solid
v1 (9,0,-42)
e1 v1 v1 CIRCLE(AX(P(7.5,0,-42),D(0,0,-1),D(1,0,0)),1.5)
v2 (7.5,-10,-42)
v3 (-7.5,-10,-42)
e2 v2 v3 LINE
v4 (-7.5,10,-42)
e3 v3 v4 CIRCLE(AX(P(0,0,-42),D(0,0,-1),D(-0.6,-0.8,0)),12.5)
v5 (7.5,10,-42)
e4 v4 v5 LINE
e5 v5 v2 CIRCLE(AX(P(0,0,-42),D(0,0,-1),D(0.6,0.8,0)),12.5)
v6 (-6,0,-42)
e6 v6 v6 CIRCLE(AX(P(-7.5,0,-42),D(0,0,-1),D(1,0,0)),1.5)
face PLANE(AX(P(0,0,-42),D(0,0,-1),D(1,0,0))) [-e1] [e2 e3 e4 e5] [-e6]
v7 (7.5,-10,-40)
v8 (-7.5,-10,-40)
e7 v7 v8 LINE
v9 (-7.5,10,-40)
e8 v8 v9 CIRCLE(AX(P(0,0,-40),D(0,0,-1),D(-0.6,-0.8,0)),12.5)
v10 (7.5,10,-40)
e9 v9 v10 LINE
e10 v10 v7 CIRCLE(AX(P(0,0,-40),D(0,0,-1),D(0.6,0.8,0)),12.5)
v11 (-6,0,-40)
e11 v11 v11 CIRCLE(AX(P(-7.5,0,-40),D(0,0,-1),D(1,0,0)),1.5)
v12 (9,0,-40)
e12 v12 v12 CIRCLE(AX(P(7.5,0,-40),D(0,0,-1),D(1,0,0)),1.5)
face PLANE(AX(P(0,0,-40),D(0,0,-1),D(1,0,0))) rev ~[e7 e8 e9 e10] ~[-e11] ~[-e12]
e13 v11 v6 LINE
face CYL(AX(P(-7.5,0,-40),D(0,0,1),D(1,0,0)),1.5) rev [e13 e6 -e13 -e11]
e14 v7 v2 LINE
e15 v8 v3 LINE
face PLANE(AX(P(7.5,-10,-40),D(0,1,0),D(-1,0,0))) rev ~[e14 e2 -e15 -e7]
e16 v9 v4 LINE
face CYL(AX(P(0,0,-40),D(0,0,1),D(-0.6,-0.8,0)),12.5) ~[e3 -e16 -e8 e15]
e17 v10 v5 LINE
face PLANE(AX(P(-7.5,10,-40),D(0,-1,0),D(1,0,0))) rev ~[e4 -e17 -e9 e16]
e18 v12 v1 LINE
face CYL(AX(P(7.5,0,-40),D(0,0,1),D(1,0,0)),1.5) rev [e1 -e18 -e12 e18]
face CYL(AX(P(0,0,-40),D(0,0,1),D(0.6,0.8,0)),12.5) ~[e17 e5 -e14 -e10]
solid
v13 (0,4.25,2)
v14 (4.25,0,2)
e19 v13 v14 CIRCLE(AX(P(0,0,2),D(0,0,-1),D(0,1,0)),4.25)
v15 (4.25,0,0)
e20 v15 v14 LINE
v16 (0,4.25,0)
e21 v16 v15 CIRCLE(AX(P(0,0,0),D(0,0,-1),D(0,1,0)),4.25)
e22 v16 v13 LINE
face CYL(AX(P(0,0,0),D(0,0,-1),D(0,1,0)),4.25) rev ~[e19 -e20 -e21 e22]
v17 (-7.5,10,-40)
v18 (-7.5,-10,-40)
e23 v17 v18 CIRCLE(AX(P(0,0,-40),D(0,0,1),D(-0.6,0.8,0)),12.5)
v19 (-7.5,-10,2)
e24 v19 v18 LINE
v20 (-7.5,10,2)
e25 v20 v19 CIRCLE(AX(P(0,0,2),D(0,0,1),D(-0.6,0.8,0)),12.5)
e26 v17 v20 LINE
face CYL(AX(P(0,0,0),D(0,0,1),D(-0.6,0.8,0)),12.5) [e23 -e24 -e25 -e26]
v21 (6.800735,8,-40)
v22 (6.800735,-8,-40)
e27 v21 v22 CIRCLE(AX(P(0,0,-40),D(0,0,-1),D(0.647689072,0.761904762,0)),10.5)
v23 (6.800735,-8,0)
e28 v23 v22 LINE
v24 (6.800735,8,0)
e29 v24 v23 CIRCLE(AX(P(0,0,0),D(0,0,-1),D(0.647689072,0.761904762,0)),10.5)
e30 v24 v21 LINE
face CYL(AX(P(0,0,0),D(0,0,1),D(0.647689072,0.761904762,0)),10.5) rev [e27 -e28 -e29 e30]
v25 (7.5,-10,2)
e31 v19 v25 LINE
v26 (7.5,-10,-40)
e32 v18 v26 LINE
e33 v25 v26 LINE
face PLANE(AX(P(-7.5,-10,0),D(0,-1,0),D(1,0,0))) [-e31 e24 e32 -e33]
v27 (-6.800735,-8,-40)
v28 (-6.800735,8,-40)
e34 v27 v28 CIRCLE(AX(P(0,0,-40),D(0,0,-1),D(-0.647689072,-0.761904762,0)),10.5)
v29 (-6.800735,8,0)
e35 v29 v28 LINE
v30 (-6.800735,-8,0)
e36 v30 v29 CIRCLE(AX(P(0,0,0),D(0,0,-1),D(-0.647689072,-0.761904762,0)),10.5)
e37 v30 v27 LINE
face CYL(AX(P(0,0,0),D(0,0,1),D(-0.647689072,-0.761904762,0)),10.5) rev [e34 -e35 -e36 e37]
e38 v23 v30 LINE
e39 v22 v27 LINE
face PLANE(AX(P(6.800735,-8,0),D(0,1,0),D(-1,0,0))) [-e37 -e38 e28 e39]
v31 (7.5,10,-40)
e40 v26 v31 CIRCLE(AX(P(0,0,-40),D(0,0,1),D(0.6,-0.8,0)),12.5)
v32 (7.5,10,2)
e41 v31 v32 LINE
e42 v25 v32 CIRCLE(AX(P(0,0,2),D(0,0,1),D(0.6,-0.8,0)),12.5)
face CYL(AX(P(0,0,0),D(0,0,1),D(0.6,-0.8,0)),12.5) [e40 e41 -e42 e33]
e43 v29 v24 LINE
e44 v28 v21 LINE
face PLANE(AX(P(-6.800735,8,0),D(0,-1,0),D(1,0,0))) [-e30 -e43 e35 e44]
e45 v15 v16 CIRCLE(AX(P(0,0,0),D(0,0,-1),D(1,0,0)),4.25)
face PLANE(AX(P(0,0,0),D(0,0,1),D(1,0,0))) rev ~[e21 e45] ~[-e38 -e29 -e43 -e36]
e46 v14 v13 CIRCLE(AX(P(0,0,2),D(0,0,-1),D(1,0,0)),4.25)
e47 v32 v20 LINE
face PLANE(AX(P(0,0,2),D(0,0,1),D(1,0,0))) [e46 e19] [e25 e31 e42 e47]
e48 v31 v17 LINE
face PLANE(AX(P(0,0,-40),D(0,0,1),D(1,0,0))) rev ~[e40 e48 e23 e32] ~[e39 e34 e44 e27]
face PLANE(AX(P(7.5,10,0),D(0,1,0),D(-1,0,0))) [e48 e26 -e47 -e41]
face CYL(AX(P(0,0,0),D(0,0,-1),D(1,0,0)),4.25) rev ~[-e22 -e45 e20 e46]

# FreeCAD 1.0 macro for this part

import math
import FreeCAD as App
import Part
import Sketcher
from FreeCAD import Vector
Q = App.Units.Quantity

doc = App.newDocument("Part")
params = doc.addObject("Spreadsheet::Sheet", "Params")
for row, (alias, value) in enumerate([
    ("sketch1_radius", "12.5 mm"),
    ("sketch1_width", "15 mm"),
    ("sketch1_radius2", "4.25 mm"),
    ("pad1_length", "2 mm"),
    ("sketch2_radius", "12.5 mm"),
    ("sketch2_radius2", "10.5 mm"),
    ("sketch2_width", "15 mm"),
    ("pad2_length", "40 mm"),
    ("sketch3_diameter", "3 mm"),
    ("sketch3_radius", "12.5 mm"),
    ("sketch3_width", "15 mm"),
    ("pad3_length", "2 mm"),
], start=1):
    params.set(f"A{row}", alias)
    params.set(f"B{row}", "=" + value)
    params.setAlias(f"B{row}", alias)

body = doc.addObject("PartDesign::Body", "Body")

sketch1 = doc.addObject("Sketcher::SketchObject", "Sketch")
body.addObject(sketch1)
sketch1.AttachmentSupport = (doc.XY_Plane, [""])
sketch1.MapMode = "FlatFace"
sketch1.addGeometry(Part.ArcOfCircle(Part.Circle(Vector(0, 0, 0), Vector(0, 0, 1), 12.5), math.radians(-53.130102), math.radians(53.130102)), False)
sketch1.addGeometry(Part.LineSegment(Vector(7.5, 10, 0), Vector(-7.5, 10, 0)), False)
sketch1.addGeometry(Part.ArcOfCircle(Part.Circle(Vector(0, 0, 0), Vector(0, 0, 1), 12.5), math.radians(126.869898), math.radians(233.130102)), False)
sketch1.addGeometry(Part.LineSegment(Vector(-7.5, -10, 0), Vector(7.5, -10, 0)), False)
sketch1.addGeometry(Part.ArcOfCircle(Part.Circle(Vector(0, 0, 0), Vector(0, 0, 1), 4.25), math.radians(90), math.radians(360)), False)
sketch1.addGeometry(Part.ArcOfCircle(Part.Circle(Vector(0, 0, 0), Vector(0, 0, 1), 4.25), math.radians(0), math.radians(90)), False)
sketch1.addConstraint(Sketcher.Constraint("Coincident", 0, 2, 1, 1))
sketch1.addConstraint(Sketcher.Constraint("Coincident", 1, 2, 2, 1))
sketch1.addConstraint(Sketcher.Constraint("Coincident", 2, 2, 3, 1))
sketch1.addConstraint(Sketcher.Constraint("Coincident", 3, 2, 0, 1))
sketch1.addConstraint(Sketcher.Constraint("Tangent", 4, 1, 5, 2))
sketch1.addConstraint(Sketcher.Constraint("Coincident", 5, 1, 4, 2))
sketch1.addConstraint(Sketcher.Constraint("Horizontal", 1))
sketch1.addConstraint(Sketcher.Constraint("Horizontal", 3))
sketch1.addConstraint(Sketcher.Constraint("Coincident", 0, 3, -1, 1))
sketch1.addConstraint(Sketcher.Constraint("Coincident", 2, 3, -1, 1))
sketch1.addConstraint(Sketcher.Constraint("Coincident", 4, 3, -1, 1))
sketch1.addConstraint(Sketcher.Constraint("Equal", 0, 2))
sketch1.addConstraint(Sketcher.Constraint("PointOnObject", 4, 1, -2))
sketch1.addConstraint(Sketcher.Constraint("PointOnObject", 5, 1, -1))
sketch1.addConstraint(Sketcher.Constraint("Vertical", 1, 2, 2, 2))
sketch1.addConstraint(Sketcher.Constraint("Radius", 0, Q("12.5 mm")))
sketch1.addConstraint(Sketcher.Constraint("DistanceX", 1, 2, 1, 1, Q("15 mm")))
sketch1.addConstraint(Sketcher.Constraint("Radius", 4, Q("4.25 mm")))
sketch1.setExpression("Constraints[15]", "Params.sketch1_radius")
sketch1.setExpression("Constraints[16]", "Params.sketch1_width")
sketch1.setExpression("Constraints[17]", "Params.sketch1_radius2")
pad1 = doc.addObject("PartDesign::Pad", "Pad")
body.addObject(pad1)
pad1.Profile = sketch1
pad1.setExpression("Length", "Params.pad1_length")

sketch2 = doc.addObject("Sketcher::SketchObject", "Sketch001")
body.addObject(sketch2)
sketch2.AttachmentSupport = (doc.XY_Plane, [""])
sketch2.MapMode = "FlatFace"
sketch2.addGeometry(Part.ArcOfCircle(Part.Circle(Vector(0, 0, 0), Vector(0, 0, 1), 12.5), math.radians(-53.130102), math.radians(53.130102)), False)
sketch2.addGeometry(Part.LineSegment(Vector(7.5, 10, 0), Vector(-7.5, 10, 0)), False)
sketch2.addGeometry(Part.ArcOfCircle(Part.Circle(Vector(0, 0, 0), Vector(0, 0, 1), 12.5), math.radians(126.869898), math.radians(233.130102)), False)
sketch2.addGeometry(Part.LineSegment(Vector(-7.5, -10, 0), Vector(7.5, -10, 0)), False)
sketch2.addGeometry(Part.ArcOfCircle(Part.Circle(Vector(0, 0, 0), Vector(0, 0, 1), 10.5), math.radians(130.367594), math.radians(229.632406)), False)
sketch2.addGeometry(Part.LineSegment(Vector(-6.800735, 8, 0), Vector(6.800735, 8, 0)), False)
sketch2.addGeometry(Part.ArcOfCircle(Part.Circle(Vector(0, 0, 0), Vector(0, 0, 1), 10.5), math.radians(-49.632406), math.radians(49.632406)), False)
sketch2.addGeometry(Part.LineSegment(Vector(6.800735, -8, 0), Vector(-6.800735, -8, 0)), False)
sketch2.addConstraint(Sketcher.Constraint("Coincident", 0, 2, 1, 1))
sketch2.addConstraint(Sketcher.Constraint("Coincident", 1, 2, 2, 1))
sketch2.addConstraint(Sketcher.Constraint("Coincident", 2, 2, 3, 1))
sketch2.addConstraint(Sketcher.Constraint("Coincident", 3, 2, 0, 1))
sketch2.addConstraint(Sketcher.Constraint("Coincident", 4, 1, 5, 1))
sketch2.addConstraint(Sketcher.Constraint("Coincident", 5, 2, 6, 2))
sketch2.addConstraint(Sketcher.Constraint("Coincident", 6, 1, 7, 1))
sketch2.addConstraint(Sketcher.Constraint("Coincident", 7, 2, 4, 2))
sketch2.addConstraint(Sketcher.Constraint("Horizontal", 1))
sketch2.addConstraint(Sketcher.Constraint("Horizontal", 3))
sketch2.addConstraint(Sketcher.Constraint("Horizontal", 5))
sketch2.addConstraint(Sketcher.Constraint("Horizontal", 7))
sketch2.addConstraint(Sketcher.Constraint("Coincident", 0, 3, -1, 1))
sketch2.addConstraint(Sketcher.Constraint("Coincident", 2, 3, -1, 1))
sketch2.addConstraint(Sketcher.Constraint("Coincident", 4, 3, -1, 1))
sketch2.addConstraint(Sketcher.Constraint("Coincident", 6, 3, -1, 1))
sketch2.addConstraint(Sketcher.Constraint("Equal", 0, 2))
sketch2.addConstraint(Sketcher.Constraint("Equal", 4, 6))
sketch2.addConstraint(Sketcher.Constraint("Vertical", 1, 2, 2, 2))
sketch2.addConstraint(Sketcher.Constraint("Vertical", 5, 2, 6, 1))
sketch2.addConstraint(Sketcher.Constraint("Radius", 0, Q("12.5 mm")))
sketch2.addConstraint(Sketcher.Constraint("Radius", 4, Q("10.5 mm")))
sketch2.addConstraint(Sketcher.Constraint("DistanceX", 1, 2, 1, 1, Q("15 mm")))
sketch2.addConstraint(Sketcher.Constraint("DistanceY", -1, 1, 4, 1, Q("8 mm")))
sketch2.setExpression("Constraints[20]", "Params.sketch2_radius")
sketch2.setExpression("Constraints[21]", "Params.sketch2_radius2")
sketch2.setExpression("Constraints[22]", "Params.sketch2_width")
pad2 = doc.addObject("PartDesign::Pad", "Pad001")
body.addObject(pad2)
pad2.Profile = sketch2
pad2.setExpression("Length", "Params.pad2_length")
pad2.Reversed = True
body2 = doc.addObject("PartDesign::Body", "Body001")

sketch3 = doc.addObject("Sketcher::SketchObject", "Sketch002")
body2.addObject(sketch3)
sketch3.AttachmentSupport = (doc.getObject("XY_Plane001"), [""])
sketch3.MapMode = "FlatFace"
sketch3.AttachmentOffset = App.Placement(Vector(0, 0, -40), App.Rotation())
sketch3.addGeometry(Part.ArcOfCircle(Part.Circle(Vector(0, 0, 0), Vector(0, 0, 1), 12.5), math.radians(-53.130102), math.radians(53.130102)), False)
sketch3.addGeometry(Part.LineSegment(Vector(7.5, -10, 0), Vector(-7.5, -10, 0)), False)
sketch3.addGeometry(Part.ArcOfCircle(Part.Circle(Vector(0, 0, 0), Vector(0, 0, 1), 12.5), math.radians(126.869898), math.radians(233.130102)), False)
sketch3.addGeometry(Part.LineSegment(Vector(-7.5, 10, 0), Vector(7.5, 10, 0)), False)
sketch3.addGeometry(Part.Circle(Vector(-7.5, 0, 0), Vector(0, 0, 1), 1.5), False)
sketch3.addGeometry(Part.Circle(Vector(7.5, 0, 0), Vector(0, 0, 1), 1.5), False)
sketch3.addConstraint(Sketcher.Constraint("Coincident", 0, 1, 1, 1))
sketch3.addConstraint(Sketcher.Constraint("Coincident", 1, 2, 2, 2))
sketch3.addConstraint(Sketcher.Constraint("Coincident", 2, 1, 3, 1))
sketch3.addConstraint(Sketcher.Constraint("Coincident", 3, 2, 0, 2))
sketch3.addConstraint(Sketcher.Constraint("Horizontal", 1))
sketch3.addConstraint(Sketcher.Constraint("Horizontal", 3))
sketch3.addConstraint(Sketcher.Constraint("Coincident", 0, 3, -1, 1))
sketch3.addConstraint(Sketcher.Constraint("Coincident", 2, 3, -1, 1))
sketch3.addConstraint(Sketcher.Constraint("Equal", 0, 2))
sketch3.addConstraint(Sketcher.Constraint("Equal", 4, 5))
sketch3.addConstraint(Sketcher.Constraint("Symmetric", 4, 3, 5, 3, -1, 1))
sketch3.addConstraint(Sketcher.Constraint("PointOnObject", 4, 3, -1))
sketch3.addConstraint(Sketcher.Constraint("Vertical", 5, 3, 0, 1))
sketch3.addConstraint(Sketcher.Constraint("Vertical", 1, 2, 2, 1))
sketch3.addConstraint(Sketcher.Constraint("Diameter", 4, Q("3 mm")))
sketch3.addConstraint(Sketcher.Constraint("Radius", 0, Q("12.5 mm")))
sketch3.addConstraint(Sketcher.Constraint("DistanceX", 1, 2, 1, 1, Q("15 mm")))
sketch3.setExpression("Constraints[14]", "Params.sketch3_diameter")
sketch3.setExpression("Constraints[15]", "Params.sketch3_radius")
sketch3.setExpression("Constraints[16]", "Params.sketch3_width")
pad3 = doc.addObject("PartDesign::Pad", "Pad002")
body2.addObject(pad3)
pad3.Profile = sketch3
pad3.setExpression("Length", "Params.pad3_length")
pad3.Reversed = True

doc.recompute()
